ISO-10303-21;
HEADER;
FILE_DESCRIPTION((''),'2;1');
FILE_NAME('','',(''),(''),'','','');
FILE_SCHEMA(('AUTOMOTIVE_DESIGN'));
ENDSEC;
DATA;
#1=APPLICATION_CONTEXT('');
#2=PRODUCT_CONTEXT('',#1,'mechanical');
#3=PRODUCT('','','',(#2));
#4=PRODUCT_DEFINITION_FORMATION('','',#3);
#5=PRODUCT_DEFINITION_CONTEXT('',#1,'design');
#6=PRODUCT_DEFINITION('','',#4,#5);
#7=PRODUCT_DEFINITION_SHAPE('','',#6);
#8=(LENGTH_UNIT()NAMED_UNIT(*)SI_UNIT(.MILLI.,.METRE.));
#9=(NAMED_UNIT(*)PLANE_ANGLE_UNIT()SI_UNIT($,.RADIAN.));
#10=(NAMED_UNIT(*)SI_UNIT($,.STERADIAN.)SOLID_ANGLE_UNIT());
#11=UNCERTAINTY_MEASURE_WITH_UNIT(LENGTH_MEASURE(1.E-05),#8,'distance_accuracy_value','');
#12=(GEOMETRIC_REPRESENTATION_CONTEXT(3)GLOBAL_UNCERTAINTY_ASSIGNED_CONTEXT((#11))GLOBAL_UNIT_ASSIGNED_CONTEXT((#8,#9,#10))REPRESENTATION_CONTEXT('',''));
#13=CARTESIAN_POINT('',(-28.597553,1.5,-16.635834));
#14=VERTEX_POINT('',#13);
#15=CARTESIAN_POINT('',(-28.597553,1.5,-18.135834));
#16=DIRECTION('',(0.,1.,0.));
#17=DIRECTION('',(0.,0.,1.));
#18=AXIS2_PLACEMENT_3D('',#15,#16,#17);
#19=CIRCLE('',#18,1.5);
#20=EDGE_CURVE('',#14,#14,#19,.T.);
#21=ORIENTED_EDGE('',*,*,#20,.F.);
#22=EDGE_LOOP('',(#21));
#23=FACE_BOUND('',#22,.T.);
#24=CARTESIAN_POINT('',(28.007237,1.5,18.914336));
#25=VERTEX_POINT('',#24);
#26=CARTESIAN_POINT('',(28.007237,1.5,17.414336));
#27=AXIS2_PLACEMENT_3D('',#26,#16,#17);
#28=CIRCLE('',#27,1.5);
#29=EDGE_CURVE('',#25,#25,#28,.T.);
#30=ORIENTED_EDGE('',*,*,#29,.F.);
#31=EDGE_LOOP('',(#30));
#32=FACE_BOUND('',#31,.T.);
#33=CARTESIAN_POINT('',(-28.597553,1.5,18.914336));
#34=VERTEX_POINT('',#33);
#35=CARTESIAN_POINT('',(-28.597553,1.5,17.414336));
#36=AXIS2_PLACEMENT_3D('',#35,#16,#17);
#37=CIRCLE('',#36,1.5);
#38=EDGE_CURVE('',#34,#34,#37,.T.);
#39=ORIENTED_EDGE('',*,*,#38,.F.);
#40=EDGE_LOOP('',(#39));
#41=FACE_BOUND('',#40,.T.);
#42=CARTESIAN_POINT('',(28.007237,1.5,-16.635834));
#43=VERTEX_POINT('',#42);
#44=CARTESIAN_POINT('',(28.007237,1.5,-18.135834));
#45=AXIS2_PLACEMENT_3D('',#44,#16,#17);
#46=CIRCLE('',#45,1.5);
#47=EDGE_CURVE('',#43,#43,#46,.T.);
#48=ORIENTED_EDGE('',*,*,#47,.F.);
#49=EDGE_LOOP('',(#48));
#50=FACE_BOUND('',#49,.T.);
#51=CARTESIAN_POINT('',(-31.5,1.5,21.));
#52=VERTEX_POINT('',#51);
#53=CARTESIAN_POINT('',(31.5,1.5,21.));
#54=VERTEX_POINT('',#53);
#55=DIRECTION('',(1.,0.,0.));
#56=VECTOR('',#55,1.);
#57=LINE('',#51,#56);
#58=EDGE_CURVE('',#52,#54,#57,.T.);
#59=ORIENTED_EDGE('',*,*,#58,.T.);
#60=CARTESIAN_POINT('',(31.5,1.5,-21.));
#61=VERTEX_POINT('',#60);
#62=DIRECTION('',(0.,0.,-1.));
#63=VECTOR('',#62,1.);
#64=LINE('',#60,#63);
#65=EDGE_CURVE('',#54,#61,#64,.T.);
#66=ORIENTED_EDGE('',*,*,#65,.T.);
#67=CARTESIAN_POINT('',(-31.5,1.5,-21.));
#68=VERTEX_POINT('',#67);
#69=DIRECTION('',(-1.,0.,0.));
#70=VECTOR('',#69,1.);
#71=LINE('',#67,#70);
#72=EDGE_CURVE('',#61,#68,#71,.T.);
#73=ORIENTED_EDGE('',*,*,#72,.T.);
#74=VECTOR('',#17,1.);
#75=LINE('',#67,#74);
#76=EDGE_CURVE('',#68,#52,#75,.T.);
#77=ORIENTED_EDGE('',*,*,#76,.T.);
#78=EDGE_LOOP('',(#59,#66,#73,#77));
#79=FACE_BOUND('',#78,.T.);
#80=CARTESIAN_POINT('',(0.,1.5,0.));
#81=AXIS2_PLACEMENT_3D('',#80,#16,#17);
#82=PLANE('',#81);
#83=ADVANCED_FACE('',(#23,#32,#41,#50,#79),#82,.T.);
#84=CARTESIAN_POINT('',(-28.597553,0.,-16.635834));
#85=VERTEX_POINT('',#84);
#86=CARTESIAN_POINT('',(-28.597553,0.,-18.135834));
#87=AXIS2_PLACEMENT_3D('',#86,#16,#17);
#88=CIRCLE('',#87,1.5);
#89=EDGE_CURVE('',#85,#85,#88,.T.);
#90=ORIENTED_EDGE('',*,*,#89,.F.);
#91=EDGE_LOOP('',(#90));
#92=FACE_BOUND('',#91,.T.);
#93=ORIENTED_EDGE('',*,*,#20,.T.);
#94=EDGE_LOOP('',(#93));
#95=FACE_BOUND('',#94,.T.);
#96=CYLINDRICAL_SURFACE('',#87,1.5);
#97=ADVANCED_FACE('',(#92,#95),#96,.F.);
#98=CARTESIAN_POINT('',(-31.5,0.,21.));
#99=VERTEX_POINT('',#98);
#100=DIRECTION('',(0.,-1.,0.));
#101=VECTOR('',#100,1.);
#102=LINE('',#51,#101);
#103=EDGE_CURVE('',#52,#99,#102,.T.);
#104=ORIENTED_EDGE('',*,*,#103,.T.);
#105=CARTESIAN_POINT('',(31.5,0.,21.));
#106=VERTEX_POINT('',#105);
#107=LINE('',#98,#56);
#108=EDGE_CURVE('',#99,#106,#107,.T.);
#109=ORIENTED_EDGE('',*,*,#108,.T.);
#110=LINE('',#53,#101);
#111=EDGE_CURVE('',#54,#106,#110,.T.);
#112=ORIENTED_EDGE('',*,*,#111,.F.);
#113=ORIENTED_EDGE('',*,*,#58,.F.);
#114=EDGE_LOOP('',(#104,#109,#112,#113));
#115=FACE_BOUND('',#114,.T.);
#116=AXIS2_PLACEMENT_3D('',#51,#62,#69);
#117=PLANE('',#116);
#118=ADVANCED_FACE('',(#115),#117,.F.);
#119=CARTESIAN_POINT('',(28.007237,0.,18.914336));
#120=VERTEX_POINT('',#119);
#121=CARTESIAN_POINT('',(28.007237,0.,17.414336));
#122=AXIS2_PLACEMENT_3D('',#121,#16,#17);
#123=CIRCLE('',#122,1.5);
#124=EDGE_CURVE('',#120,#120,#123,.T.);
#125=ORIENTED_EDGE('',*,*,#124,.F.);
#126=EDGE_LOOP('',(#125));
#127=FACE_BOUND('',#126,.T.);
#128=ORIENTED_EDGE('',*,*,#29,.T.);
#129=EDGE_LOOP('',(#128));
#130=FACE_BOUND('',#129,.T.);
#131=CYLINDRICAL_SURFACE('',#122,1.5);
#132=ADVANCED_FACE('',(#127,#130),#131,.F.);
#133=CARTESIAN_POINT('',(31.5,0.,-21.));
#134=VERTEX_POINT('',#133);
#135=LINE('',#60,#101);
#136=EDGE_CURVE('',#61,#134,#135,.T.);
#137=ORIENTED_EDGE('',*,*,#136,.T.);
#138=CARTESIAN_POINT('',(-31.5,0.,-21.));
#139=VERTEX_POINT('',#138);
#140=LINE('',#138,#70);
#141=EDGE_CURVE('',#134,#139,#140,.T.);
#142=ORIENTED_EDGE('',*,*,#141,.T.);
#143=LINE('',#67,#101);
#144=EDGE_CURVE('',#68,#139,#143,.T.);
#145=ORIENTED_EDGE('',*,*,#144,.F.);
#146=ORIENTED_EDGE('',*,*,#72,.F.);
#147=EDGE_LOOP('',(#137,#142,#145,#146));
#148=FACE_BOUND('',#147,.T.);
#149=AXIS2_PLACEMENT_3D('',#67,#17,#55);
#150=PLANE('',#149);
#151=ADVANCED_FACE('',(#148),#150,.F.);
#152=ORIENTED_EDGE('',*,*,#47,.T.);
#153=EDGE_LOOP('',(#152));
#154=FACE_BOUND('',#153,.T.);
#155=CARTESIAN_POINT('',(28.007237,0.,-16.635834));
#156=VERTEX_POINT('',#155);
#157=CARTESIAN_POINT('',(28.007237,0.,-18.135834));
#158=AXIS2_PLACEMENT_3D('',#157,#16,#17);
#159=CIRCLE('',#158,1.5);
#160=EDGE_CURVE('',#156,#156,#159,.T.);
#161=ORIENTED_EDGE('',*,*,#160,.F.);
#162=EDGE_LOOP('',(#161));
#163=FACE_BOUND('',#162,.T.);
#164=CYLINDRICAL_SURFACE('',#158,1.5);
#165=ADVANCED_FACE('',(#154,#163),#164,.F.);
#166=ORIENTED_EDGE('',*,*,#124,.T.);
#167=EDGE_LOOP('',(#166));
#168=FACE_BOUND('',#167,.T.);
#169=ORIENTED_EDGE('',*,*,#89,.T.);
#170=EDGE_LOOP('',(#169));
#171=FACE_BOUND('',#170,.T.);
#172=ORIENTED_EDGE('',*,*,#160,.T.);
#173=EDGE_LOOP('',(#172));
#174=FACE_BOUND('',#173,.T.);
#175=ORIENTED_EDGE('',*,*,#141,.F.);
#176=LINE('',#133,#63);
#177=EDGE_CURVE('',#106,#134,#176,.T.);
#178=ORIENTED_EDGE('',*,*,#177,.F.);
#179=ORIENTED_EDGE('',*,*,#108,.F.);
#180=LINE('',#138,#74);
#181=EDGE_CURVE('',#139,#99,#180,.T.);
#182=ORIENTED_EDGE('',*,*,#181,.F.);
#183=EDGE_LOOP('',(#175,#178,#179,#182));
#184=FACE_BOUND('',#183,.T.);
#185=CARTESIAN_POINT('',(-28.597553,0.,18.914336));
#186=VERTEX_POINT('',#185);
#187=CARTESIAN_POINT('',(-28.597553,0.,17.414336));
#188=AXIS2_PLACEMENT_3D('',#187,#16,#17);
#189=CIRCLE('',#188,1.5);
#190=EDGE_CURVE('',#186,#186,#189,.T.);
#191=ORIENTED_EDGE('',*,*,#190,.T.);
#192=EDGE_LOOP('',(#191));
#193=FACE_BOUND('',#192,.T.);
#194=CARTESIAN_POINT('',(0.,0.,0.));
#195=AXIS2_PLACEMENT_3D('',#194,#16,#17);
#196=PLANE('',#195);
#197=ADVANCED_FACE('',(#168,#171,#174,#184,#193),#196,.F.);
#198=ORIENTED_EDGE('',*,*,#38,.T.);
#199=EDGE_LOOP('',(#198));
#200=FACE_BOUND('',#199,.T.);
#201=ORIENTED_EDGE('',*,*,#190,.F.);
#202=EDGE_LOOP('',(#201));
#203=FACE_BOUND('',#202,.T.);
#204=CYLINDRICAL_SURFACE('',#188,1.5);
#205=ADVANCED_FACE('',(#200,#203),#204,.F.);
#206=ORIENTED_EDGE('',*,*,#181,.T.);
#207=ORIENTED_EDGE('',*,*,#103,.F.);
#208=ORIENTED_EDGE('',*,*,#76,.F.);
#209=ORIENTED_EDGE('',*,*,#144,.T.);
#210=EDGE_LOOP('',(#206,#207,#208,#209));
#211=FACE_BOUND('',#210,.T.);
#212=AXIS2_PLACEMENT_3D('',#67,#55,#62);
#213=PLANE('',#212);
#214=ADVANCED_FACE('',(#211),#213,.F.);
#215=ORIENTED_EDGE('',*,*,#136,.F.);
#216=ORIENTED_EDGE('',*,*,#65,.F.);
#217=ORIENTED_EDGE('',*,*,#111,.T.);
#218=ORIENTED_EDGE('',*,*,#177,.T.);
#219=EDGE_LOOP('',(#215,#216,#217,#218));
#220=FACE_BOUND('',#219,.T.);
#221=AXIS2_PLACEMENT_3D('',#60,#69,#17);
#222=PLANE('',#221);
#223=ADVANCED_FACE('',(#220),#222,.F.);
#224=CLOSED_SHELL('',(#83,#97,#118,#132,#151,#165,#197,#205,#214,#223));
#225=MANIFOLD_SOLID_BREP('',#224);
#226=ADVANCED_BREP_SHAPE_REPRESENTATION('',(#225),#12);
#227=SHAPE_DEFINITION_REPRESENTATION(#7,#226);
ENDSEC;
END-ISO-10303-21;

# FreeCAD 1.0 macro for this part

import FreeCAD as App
import Part
import Sketcher
Q = App.Units.Quantity


def add_polygon(sketch, points):
    """Adds a closed chain of lines whose ends are joined by coincident constraints."""
    first, n = sketch.GeometryCount, len(points)
    for a, b in zip(points, points[1:] + points[:1]):
        sketch.addGeometry(Part.LineSegment(App.Vector(*a, 0), App.Vector(*b, 0)), False)
    for i in range(n):
        sketch.addConstraint(Sketcher.Constraint("Coincident", first + i, 2, first + (i + 1) % n, 1))

doc = App.newDocument("Part")
body = doc.addObject("PartDesign::Body", "Body")

# Sketch on XZ plane
sketch1 = body.newObject("Sketcher::SketchObject", "Sketch")
sketch1.AttachmentSupport = (doc.getObject("XZ_Plane"), [""])
sketch1.MapMode = "FlatFace"
add_polygon(sketch1, [(-32, -21), (-32, 21), (32, 21), (32, -21)])  # lines 0-3
sketch1.addConstraint([
    Sketcher.Constraint("Vertical", 0),
    Sketcher.Constraint("Horizontal", 1),
    Sketcher.Constraint("Vertical", 2),
    Sketcher.Constraint("Horizontal", 3),
    Sketcher.Constraint("Symmetric", 0, 2, 2, 2, -1, 1),
    Sketcher.Constraint("DistanceX", 1, 1, 1, 2, Q("63 mm")),
    Sketcher.Constraint("DistanceY", 0, 1, 0, 2, Q("42 mm")),
])
pad1 = body.newObject("PartDesign::Pad", "Pad")
pad1.Profile = sketch1
pad1.Length = 1.5
pad1.Reversed = True

# Sketch on XZ plane
sketch2 = body.newObject("Sketcher::SketchObject", "Sketch001")
sketch2.AttachmentSupport = (doc.getObject("XZ_Plane"), [""])
sketch2.MapMode = "FlatFace"
sketch2.AttachmentOffset = App.Placement(App.Vector(0, 0, -1.5), App.Rotation())
sketch2.addGeometry([
    Part.Circle(App.Vector(-28.6, -18.1, 0), App.Vector(0, 0, 1), 1.5),
    Part.Circle(App.Vector(28, -18.1, 0), App.Vector(0, 0, 1), 1.5),
    Part.Circle(App.Vector(28, 17.4, 0), App.Vector(0, 0, 1), 1.5),
    Part.Circle(App.Vector(-28.6, 17.4, 0), App.Vector(0, 0, 1), 1.5),
], False)
sketch2.addConstraint([
    Sketcher.Constraint("Equal", 0, 1),
    Sketcher.Constraint("Equal", 1, 2),
    Sketcher.Constraint("Equal", 2, 3),
    Sketcher.Constraint("Horizontal", 0, 3, 1, 3),
    Sketcher.Constraint("Horizontal", 2, 3, 3, 3),
    Sketcher.Constraint("Vertical", 1, 3, 2, 3),
    Sketcher.Constraint("Vertical", 0, 3, 3, 3),
    Sketcher.Constraint("Diameter", 0, Q("3 mm")),
    Sketcher.Constraint("DistanceX", 0, 3, 1, 3, Q("56.604791 mm")),
    Sketcher.Constraint("DistanceY", 1, 3, 2, 3, Q("35.55017 mm")),
    Sketcher.Constraint("DistanceX", 0, 3, -1, 1, Q("28.597553 mm")),
    Sketcher.Constraint("DistanceY", 0, 3, -1, 1, Q("18.135834 mm")),
])
pocket1 = body.newObject("PartDesign::Pocket", "Pocket")
pocket1.Profile = sketch2
pocket1.Type = "ThroughAll"
pocket1.Reversed = True

doc.recompute()
